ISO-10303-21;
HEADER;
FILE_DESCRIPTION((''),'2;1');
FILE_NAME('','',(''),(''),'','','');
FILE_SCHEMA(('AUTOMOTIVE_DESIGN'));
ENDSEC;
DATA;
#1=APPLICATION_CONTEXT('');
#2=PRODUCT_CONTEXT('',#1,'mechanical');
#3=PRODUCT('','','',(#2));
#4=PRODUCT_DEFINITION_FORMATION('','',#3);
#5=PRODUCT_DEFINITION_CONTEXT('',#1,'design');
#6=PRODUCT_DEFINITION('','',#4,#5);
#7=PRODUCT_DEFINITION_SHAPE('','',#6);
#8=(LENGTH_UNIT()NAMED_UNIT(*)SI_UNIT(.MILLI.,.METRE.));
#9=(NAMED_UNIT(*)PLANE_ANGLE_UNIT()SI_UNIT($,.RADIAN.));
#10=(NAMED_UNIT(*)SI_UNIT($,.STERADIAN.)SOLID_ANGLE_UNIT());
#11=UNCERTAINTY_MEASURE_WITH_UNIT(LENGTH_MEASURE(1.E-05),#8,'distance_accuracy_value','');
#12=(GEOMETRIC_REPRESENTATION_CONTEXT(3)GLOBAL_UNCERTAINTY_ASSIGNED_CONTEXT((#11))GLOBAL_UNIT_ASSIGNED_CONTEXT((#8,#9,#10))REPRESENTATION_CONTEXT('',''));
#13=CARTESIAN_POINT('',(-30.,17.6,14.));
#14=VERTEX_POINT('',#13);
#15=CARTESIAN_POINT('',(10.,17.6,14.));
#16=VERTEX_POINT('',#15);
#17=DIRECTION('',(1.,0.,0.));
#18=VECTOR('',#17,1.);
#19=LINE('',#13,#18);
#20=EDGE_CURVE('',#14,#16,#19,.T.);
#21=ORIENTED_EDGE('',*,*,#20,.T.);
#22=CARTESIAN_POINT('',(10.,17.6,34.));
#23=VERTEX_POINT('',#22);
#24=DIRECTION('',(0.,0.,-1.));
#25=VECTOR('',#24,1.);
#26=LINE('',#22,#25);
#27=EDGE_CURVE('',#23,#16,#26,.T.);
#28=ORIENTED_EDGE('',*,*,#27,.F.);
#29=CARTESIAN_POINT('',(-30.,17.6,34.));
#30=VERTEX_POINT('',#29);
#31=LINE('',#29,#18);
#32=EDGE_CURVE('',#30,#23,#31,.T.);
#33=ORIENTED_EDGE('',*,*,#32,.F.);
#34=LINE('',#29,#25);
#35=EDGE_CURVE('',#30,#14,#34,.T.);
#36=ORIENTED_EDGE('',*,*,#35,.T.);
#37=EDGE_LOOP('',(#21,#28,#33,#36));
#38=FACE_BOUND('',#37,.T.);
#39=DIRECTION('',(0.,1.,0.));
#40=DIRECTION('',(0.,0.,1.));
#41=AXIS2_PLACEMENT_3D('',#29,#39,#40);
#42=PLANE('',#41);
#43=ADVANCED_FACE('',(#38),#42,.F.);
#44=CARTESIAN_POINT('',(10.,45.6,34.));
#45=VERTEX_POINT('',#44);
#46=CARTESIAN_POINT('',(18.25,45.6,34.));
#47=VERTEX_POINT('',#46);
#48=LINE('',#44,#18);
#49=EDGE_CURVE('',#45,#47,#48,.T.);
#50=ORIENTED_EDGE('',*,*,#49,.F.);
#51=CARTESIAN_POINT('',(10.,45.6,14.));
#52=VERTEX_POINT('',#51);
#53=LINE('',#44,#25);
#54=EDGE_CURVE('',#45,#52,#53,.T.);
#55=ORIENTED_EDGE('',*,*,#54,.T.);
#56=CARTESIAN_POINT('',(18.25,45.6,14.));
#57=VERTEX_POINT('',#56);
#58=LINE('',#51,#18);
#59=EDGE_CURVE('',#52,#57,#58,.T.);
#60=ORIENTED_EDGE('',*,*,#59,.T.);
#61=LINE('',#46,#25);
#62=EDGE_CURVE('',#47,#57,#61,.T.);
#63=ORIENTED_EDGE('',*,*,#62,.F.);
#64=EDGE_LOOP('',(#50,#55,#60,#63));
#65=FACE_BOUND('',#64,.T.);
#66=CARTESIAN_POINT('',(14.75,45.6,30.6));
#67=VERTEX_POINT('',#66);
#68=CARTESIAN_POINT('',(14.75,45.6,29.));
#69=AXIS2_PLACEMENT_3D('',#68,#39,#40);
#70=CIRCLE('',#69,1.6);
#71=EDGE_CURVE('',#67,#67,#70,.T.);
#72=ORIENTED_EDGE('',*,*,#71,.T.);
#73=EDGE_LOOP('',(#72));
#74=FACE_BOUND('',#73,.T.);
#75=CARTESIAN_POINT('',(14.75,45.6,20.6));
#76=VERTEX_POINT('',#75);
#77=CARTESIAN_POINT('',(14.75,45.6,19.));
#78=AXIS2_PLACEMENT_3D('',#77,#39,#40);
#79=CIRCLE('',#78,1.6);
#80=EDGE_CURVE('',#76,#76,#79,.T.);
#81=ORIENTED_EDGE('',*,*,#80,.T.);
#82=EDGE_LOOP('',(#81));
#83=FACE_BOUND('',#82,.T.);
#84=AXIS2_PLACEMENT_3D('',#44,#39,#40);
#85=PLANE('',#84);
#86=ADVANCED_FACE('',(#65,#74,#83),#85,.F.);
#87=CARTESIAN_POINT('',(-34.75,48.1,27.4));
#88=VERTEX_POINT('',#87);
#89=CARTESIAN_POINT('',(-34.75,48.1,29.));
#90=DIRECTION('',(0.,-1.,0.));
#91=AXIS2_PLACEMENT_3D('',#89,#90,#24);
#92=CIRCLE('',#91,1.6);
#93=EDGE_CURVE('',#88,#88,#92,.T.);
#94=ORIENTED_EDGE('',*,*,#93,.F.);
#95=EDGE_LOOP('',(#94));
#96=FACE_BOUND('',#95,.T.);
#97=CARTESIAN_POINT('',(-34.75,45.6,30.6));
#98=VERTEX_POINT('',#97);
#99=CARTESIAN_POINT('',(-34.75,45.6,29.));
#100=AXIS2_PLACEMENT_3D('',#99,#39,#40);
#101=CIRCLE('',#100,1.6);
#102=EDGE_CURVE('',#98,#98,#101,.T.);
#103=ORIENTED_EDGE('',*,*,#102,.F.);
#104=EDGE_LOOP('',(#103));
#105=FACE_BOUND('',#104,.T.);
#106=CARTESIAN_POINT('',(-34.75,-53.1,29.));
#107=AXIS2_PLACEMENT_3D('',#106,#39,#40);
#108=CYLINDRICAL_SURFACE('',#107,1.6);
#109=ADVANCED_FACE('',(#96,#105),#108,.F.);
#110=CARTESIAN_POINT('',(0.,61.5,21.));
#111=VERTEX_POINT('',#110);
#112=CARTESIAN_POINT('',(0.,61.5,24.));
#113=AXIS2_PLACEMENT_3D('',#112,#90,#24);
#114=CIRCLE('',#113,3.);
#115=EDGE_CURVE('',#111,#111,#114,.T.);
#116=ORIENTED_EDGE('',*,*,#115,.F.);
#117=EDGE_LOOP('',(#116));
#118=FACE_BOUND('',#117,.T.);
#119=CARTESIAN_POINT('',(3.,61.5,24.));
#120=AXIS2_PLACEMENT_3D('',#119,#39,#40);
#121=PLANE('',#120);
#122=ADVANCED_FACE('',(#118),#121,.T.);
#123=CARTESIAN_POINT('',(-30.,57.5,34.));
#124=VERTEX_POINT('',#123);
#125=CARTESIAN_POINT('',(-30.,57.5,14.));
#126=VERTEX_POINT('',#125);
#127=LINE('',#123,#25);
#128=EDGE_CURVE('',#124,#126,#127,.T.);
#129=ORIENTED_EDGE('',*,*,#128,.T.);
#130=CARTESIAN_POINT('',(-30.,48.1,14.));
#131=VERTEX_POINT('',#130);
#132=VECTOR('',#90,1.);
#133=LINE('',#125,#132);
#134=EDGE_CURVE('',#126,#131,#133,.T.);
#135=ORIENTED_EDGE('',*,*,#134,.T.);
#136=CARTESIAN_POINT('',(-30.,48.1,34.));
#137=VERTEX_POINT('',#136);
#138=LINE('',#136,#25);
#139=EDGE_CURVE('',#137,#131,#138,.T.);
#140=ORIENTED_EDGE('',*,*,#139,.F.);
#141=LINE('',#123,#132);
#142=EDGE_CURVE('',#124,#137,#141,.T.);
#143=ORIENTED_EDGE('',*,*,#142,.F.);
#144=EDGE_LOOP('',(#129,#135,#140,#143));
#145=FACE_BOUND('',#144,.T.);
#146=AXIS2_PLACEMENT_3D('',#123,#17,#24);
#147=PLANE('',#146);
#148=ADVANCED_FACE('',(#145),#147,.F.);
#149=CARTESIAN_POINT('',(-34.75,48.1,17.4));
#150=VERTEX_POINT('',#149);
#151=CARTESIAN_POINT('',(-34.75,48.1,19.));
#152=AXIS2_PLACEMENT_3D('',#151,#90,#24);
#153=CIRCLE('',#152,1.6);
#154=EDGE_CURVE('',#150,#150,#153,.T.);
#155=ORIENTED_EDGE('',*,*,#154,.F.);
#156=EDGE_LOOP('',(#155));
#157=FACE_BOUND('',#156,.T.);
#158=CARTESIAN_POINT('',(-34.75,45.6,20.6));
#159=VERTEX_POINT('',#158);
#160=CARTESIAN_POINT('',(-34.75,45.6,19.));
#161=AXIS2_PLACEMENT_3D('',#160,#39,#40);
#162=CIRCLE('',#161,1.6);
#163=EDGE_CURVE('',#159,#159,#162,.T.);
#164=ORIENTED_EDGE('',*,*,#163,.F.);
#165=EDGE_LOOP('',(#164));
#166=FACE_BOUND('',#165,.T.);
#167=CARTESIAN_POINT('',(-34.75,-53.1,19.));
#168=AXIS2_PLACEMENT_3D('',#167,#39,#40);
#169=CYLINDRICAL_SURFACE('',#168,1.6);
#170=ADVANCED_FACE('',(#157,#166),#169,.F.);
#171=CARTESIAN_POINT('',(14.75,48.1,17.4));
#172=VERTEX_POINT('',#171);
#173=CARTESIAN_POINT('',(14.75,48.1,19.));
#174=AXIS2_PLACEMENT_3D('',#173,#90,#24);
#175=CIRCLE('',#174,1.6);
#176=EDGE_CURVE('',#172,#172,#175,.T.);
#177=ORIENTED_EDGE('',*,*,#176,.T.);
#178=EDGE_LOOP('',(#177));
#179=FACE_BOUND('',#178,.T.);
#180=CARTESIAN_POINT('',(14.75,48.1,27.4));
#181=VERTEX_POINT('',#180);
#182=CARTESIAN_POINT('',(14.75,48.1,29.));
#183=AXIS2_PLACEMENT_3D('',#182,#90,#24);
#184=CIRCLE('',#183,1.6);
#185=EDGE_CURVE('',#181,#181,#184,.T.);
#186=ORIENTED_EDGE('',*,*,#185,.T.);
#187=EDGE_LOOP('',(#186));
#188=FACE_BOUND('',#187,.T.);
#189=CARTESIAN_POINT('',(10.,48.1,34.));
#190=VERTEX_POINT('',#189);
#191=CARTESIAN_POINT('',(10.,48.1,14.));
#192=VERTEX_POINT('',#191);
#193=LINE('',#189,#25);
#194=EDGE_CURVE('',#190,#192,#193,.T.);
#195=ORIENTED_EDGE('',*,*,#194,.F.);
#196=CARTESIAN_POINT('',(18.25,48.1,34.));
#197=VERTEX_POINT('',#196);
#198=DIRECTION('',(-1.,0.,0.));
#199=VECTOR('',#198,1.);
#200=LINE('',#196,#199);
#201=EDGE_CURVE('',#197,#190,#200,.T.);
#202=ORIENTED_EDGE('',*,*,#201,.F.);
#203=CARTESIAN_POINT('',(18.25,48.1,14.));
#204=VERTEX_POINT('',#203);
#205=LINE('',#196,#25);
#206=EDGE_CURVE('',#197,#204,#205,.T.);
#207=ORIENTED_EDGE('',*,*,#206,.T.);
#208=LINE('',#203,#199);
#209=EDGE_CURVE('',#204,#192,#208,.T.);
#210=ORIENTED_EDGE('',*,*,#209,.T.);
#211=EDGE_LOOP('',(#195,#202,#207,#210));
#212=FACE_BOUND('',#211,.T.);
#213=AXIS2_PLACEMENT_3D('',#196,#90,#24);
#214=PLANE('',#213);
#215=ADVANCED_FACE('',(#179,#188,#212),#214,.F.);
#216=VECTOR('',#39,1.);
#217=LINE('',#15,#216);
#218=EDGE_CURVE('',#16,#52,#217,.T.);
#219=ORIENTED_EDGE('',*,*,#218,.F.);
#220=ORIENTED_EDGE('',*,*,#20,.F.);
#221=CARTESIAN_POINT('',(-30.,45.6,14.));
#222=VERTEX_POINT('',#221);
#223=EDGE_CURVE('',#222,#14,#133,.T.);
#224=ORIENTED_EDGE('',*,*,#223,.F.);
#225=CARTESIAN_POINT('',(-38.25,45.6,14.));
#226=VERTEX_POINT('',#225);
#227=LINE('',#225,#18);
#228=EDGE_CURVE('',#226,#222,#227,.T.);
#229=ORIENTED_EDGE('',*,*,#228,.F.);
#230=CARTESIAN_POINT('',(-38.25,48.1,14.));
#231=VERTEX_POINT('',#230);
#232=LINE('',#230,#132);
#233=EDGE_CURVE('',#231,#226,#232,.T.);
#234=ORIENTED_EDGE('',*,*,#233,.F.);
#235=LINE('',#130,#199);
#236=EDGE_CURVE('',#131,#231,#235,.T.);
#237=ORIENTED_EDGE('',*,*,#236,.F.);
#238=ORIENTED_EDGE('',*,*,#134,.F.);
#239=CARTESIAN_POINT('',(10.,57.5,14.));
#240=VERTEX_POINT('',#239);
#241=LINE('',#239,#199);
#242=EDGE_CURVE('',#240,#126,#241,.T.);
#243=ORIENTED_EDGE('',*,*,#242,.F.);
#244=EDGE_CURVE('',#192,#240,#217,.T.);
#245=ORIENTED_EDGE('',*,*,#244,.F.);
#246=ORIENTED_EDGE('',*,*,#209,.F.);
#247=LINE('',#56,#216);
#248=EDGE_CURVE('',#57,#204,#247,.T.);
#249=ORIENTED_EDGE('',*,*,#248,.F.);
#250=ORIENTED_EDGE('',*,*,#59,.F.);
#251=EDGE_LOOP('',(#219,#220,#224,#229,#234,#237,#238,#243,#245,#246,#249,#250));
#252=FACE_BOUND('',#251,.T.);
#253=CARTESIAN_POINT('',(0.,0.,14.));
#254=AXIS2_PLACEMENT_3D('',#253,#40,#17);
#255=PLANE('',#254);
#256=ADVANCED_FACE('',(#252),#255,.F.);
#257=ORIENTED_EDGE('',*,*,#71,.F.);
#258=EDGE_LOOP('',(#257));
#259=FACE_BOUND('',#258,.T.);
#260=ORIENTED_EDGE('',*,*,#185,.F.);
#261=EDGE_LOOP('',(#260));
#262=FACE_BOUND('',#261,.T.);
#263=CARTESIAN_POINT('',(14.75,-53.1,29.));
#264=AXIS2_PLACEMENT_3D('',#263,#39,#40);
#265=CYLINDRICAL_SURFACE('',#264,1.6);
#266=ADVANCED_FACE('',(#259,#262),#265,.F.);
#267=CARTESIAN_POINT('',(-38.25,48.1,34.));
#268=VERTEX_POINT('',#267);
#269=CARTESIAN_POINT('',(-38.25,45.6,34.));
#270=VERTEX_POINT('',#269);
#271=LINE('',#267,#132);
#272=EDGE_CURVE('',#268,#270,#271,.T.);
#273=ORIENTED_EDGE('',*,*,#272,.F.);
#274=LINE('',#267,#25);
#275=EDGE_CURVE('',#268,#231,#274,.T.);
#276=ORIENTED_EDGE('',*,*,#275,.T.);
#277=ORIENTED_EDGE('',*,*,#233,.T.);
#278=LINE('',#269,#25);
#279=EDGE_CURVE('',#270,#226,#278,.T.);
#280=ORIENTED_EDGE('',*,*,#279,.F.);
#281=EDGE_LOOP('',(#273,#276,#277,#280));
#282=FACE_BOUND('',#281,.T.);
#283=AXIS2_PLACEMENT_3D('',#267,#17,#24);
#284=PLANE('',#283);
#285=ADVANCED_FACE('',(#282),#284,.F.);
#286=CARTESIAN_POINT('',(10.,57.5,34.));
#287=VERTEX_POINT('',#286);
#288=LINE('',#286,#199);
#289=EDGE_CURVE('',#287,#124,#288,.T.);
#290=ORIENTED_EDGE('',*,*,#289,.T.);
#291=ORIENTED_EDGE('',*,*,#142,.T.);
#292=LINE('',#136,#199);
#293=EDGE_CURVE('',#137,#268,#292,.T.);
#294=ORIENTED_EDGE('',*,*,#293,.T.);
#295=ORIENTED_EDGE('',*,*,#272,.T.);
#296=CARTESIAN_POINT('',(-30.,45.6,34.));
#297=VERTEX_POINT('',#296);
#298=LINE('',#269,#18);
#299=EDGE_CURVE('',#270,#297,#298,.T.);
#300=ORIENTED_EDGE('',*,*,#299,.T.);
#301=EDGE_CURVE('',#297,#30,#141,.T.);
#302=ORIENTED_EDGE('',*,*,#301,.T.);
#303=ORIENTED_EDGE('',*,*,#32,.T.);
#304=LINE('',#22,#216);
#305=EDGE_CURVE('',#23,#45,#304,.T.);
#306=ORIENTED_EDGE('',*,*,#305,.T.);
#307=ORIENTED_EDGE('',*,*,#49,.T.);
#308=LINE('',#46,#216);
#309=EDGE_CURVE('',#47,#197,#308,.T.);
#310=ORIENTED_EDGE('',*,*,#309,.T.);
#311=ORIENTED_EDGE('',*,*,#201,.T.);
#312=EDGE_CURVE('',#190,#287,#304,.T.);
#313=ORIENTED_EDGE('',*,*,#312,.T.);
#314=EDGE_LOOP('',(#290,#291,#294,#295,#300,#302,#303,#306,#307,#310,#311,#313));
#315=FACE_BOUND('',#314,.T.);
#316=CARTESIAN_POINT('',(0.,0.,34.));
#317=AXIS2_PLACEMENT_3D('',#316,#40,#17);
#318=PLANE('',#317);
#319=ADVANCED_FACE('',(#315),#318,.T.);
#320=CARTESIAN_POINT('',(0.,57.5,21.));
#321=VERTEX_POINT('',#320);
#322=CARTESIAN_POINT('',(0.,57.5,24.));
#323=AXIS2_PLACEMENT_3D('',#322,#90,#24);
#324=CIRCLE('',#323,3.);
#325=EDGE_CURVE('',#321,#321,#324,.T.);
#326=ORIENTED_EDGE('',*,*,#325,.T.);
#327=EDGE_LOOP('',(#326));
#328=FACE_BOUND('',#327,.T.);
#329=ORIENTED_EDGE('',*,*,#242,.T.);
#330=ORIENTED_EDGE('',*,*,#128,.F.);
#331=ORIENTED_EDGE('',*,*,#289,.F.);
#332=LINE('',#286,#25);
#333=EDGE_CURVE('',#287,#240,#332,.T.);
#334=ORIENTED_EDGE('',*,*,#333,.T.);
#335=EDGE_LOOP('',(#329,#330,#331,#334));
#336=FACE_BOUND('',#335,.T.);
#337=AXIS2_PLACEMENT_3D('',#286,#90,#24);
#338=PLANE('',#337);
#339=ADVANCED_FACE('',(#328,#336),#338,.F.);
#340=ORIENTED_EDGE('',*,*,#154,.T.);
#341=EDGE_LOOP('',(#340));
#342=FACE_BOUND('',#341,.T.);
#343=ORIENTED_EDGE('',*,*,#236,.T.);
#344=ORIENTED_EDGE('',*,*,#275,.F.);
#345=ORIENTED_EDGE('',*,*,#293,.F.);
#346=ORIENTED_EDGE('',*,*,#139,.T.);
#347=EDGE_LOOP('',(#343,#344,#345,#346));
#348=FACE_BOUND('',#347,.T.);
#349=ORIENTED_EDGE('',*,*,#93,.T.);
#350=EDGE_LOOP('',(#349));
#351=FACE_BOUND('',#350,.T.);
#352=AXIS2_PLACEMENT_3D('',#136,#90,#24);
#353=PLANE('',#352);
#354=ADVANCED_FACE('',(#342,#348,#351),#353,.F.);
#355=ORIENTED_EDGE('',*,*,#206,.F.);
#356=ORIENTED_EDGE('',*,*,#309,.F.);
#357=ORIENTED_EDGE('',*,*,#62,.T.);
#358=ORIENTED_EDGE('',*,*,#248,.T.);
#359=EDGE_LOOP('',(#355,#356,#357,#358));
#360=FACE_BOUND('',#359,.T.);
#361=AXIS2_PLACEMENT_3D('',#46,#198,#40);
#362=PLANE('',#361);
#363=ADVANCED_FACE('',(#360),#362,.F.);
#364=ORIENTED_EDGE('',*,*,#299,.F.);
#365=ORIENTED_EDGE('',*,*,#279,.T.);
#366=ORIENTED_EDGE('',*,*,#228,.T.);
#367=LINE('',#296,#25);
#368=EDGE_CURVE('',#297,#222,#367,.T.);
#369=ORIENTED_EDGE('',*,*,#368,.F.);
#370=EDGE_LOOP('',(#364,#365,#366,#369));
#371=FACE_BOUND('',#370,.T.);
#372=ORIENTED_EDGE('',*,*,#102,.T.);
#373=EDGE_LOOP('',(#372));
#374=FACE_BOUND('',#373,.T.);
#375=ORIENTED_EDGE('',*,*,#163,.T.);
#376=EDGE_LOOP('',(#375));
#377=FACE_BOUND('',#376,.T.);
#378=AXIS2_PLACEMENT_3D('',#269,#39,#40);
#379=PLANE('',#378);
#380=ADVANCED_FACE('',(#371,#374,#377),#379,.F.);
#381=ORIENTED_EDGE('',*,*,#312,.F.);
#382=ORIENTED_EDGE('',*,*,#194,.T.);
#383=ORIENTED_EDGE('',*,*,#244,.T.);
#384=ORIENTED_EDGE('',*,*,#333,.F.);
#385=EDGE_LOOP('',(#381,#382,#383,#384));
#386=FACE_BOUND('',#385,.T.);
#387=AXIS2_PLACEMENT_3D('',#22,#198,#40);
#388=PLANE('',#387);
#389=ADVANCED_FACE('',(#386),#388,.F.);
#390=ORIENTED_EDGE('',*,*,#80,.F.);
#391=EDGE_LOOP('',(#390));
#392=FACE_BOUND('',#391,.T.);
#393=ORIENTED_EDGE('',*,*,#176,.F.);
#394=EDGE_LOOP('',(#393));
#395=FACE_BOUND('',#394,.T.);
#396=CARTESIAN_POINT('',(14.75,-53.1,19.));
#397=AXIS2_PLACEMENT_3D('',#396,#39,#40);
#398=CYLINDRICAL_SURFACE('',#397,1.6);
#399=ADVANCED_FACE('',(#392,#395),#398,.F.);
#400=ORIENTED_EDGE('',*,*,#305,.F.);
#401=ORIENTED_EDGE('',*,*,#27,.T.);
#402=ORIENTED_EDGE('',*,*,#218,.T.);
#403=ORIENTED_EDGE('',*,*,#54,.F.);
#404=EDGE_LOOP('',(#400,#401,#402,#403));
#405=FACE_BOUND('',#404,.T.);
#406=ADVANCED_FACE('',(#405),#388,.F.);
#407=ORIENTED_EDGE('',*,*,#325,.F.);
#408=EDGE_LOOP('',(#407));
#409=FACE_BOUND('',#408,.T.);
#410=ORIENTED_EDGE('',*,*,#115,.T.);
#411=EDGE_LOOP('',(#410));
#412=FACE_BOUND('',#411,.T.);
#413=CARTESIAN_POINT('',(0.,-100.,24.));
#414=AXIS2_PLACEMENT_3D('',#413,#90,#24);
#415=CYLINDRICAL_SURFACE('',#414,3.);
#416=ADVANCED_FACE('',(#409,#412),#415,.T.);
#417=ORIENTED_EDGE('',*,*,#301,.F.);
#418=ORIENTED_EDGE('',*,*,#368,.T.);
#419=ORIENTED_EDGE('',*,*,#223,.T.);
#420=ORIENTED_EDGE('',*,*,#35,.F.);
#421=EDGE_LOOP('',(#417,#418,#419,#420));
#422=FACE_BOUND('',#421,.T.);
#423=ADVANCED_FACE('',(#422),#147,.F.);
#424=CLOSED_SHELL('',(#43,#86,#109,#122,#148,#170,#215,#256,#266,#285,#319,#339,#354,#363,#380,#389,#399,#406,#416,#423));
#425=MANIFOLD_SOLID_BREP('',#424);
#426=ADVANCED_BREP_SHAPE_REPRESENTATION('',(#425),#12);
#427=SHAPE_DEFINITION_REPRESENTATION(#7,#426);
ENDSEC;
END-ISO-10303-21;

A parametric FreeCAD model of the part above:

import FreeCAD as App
import Part
import Sketcher
from FreeCAD import Vector
Q = App.Units.Quantity


def add_polygon(sketch, points):
    """Adds a closed chain of lines whose ends are joined by coincident constraints."""
    first, n = sketch.GeometryCount, len(points)
    for a, b in zip(points, points[1:] + points[:1]):
        sketch.addGeometry(Part.LineSegment(App.Vector(*a, 0), App.Vector(*b, 0)), False)
    for i in range(n):
        sketch.addConstraint(Sketcher.Constraint("Coincident", first + i, 2, first + (i + 1) % n, 1))

doc = App.newDocument("Part")
body = doc.addObject("PartDesign::Body", "Body")

# Sketch on XY plane
sketch1 = body.newObject("Sketcher::SketchObject", "Sketch")
sketch1.AttachmentSupport = (doc.getObject("XY_Plane"), [""])
sketch1.MapMode = "FlatFace"
sketch1.AttachmentOffset = App.Placement(Vector(0, 0, 14), App.Rotation())
add_polygon(sketch1, [(-30, 57.5), (-30, 17.6), (10, 17.6), (10, 57.5)])  # lines 0-3
sketch1.addConstraint([
    Sketcher.Constraint("Vertical", 0),
    Sketcher.Constraint("Horizontal", 1),
    Sketcher.Constraint("Vertical", 2),
    Sketcher.Constraint("Horizontal", 3),
    Sketcher.Constraint("DistanceX", 1, 1, 1, 2, Q("40 mm")),
    Sketcher.Constraint("DistanceY", 0, 2, 0, 1, Q("39.9 mm")),
    Sketcher.Constraint("DistanceX", 0, 2, -1, 1, Q("30 mm")),
    Sketcher.Constraint("DistanceY", -1, 1, 0, 2, Q("17.6 mm")),
])
pad1 = body.newObject("PartDesign::Pad", "Pad")
pad1.Profile = sketch1
pad1.Length = 20

# Sketch on XY plane
sketch2 = body.newObject("Sketcher::SketchObject", "Sketch001")
sketch2.AttachmentSupport = (doc.getObject("XY_Plane"), [""])
sketch2.MapMode = "FlatFace"
sketch2.AttachmentOffset = App.Placement(Vector(0, 0, 14), App.Rotation())
add_polygon(sketch2, [(-38.25, 48.1), (-38.25, 45.6), (-30, 45.6), (-30, 48.1)])  # lines 0-3
add_polygon(sketch2, [(10, 48.1), (10, 45.6), (18.25, 45.6), (18.25, 48.1)])  # lines 4-7
sketch2.addConstraint([
    Sketcher.Constraint("Vertical", 0),
    Sketcher.Constraint("Horizontal", 1),
    Sketcher.Constraint("Vertical", 2),
    Sketcher.Constraint("Horizontal", 3),
    Sketcher.Constraint("Vertical", 4),
    Sketcher.Constraint("Horizontal", 5),
    Sketcher.Constraint("Vertical", 6),
    Sketcher.Constraint("Horizontal", 7),
    Sketcher.Constraint("Horizontal", 1, 2, 4, 2),
    Sketcher.Constraint("Horizontal", 3, 2, 6, 2),
    Sketcher.Constraint("Equal", 3, 5),
    Sketcher.Constraint("DistanceY", 0, 2, 0, 1, Q("2.5 mm")),
    Sketcher.Constraint("DistanceX", 1, 2, -1, 1, Q("30 mm")),
    Sketcher.Constraint("DistanceX", -1, 1, 4, 2, Q("10 mm")),
    Sketcher.Constraint("DistanceX", 1, 1, 1, 2, Q("8.25 mm")),
    Sketcher.Constraint("DistanceY", -1, 1, 0, 2, Q("45.6 mm")),
])
pad2 = body.newObject("PartDesign::Pad", "Pad001")
pad2.Profile = sketch2
pad2.Length = 20

# Sketch on XY plane
sketch3 = body.newObject("Sketcher::SketchObject", "Sketch002")
sketch3.AttachmentSupport = (doc.getObject("XY_Plane"), [""])
sketch3.MapMode = "FlatFace"
sketch3.AttachmentOffset = App.Placement(Vector(0, 0, 24), App.Rotation())
add_polygon(sketch3, [(0, 61.5), (0, 57.5), (3, 57.5), (3, 61.5)])  # lines 0-3
sketch3.addConstraint([
    Sketcher.Constraint("Vertical", 0),
    Sketcher.Constraint("Horizontal", 1),
    Sketcher.Constraint("Vertical", 2),
    Sketcher.Constraint("Horizontal", 3),
    Sketcher.Constraint("PointOnObject", 0, 2, -2),
    Sketcher.Constraint("DistanceX", 1, 1, 1, 2, Q("3 mm")),
    Sketcher.Constraint("DistanceY", 0, 2, 0, 1, Q("4 mm")),
    Sketcher.Constraint("DistanceY", -1, 1, 0, 2, Q("57.5 mm")),
])
revolution = body.newObject("PartDesign::Revolution", "Revolution")
revolution.Profile = sketch3
revolution.ReferenceAxis = (sketch3, ["V_Axis"])
revolution.Angle = 360

# Sketch on XZ plane
sketch4 = body.newObject("Sketcher::SketchObject", "Sketch003")
sketch4.AttachmentSupport = (doc.getObject("XZ_Plane"), [""])
sketch4.MapMode = "FlatFace"
sketch4.addGeometry([
    Part.Circle(Vector(-34.75, 19, 0), Vector(0, 0, 1), 1.6),
    Part.Circle(Vector(-34.75, 29, 0), Vector(0, 0, 1), 1.6),
    Part.Circle(Vector(14.75, 19, 0), Vector(0, 0, 1), 1.6),
    Part.Circle(Vector(14.75, 29, 0), Vector(0, 0, 1), 1.6),
], False)
sketch4.addConstraint([
    Sketcher.Constraint("Equal", 0, 1),
    Sketcher.Constraint("Equal", 1, 2),
    Sketcher.Constraint("Equal", 2, 3),
    Sketcher.Constraint("Horizontal", 0, 3, 2, 3),
    Sketcher.Constraint("Horizontal", 1, 3, 3, 3),
    Sketcher.Constraint("Vertical", 0, 3, 1, 3),
    Sketcher.Constraint("Vertical", 2, 3, 3, 3),
    Sketcher.Constraint("Diameter", 0, Q("3.2 mm")),
    Sketcher.Constraint("DistanceY", -1, 1, 0, 3, Q("19 mm")),
    Sketcher.Constraint("DistanceY", -1, 1, 1, 3, Q("29 mm")),
    Sketcher.Constraint("DistanceX", 0, 3, 2, 3, Q("49.5 mm")),
    Sketcher.Constraint("DistanceX", 0, 3, -1, 1, Q("34.75 mm")),
])
pocket1 = body.newObject("PartDesign::Pocket", "Pocket")
pocket1.Profile = sketch4
pocket1.Length = 106.2
pocket1.Midplane = True

doc.recompute()
